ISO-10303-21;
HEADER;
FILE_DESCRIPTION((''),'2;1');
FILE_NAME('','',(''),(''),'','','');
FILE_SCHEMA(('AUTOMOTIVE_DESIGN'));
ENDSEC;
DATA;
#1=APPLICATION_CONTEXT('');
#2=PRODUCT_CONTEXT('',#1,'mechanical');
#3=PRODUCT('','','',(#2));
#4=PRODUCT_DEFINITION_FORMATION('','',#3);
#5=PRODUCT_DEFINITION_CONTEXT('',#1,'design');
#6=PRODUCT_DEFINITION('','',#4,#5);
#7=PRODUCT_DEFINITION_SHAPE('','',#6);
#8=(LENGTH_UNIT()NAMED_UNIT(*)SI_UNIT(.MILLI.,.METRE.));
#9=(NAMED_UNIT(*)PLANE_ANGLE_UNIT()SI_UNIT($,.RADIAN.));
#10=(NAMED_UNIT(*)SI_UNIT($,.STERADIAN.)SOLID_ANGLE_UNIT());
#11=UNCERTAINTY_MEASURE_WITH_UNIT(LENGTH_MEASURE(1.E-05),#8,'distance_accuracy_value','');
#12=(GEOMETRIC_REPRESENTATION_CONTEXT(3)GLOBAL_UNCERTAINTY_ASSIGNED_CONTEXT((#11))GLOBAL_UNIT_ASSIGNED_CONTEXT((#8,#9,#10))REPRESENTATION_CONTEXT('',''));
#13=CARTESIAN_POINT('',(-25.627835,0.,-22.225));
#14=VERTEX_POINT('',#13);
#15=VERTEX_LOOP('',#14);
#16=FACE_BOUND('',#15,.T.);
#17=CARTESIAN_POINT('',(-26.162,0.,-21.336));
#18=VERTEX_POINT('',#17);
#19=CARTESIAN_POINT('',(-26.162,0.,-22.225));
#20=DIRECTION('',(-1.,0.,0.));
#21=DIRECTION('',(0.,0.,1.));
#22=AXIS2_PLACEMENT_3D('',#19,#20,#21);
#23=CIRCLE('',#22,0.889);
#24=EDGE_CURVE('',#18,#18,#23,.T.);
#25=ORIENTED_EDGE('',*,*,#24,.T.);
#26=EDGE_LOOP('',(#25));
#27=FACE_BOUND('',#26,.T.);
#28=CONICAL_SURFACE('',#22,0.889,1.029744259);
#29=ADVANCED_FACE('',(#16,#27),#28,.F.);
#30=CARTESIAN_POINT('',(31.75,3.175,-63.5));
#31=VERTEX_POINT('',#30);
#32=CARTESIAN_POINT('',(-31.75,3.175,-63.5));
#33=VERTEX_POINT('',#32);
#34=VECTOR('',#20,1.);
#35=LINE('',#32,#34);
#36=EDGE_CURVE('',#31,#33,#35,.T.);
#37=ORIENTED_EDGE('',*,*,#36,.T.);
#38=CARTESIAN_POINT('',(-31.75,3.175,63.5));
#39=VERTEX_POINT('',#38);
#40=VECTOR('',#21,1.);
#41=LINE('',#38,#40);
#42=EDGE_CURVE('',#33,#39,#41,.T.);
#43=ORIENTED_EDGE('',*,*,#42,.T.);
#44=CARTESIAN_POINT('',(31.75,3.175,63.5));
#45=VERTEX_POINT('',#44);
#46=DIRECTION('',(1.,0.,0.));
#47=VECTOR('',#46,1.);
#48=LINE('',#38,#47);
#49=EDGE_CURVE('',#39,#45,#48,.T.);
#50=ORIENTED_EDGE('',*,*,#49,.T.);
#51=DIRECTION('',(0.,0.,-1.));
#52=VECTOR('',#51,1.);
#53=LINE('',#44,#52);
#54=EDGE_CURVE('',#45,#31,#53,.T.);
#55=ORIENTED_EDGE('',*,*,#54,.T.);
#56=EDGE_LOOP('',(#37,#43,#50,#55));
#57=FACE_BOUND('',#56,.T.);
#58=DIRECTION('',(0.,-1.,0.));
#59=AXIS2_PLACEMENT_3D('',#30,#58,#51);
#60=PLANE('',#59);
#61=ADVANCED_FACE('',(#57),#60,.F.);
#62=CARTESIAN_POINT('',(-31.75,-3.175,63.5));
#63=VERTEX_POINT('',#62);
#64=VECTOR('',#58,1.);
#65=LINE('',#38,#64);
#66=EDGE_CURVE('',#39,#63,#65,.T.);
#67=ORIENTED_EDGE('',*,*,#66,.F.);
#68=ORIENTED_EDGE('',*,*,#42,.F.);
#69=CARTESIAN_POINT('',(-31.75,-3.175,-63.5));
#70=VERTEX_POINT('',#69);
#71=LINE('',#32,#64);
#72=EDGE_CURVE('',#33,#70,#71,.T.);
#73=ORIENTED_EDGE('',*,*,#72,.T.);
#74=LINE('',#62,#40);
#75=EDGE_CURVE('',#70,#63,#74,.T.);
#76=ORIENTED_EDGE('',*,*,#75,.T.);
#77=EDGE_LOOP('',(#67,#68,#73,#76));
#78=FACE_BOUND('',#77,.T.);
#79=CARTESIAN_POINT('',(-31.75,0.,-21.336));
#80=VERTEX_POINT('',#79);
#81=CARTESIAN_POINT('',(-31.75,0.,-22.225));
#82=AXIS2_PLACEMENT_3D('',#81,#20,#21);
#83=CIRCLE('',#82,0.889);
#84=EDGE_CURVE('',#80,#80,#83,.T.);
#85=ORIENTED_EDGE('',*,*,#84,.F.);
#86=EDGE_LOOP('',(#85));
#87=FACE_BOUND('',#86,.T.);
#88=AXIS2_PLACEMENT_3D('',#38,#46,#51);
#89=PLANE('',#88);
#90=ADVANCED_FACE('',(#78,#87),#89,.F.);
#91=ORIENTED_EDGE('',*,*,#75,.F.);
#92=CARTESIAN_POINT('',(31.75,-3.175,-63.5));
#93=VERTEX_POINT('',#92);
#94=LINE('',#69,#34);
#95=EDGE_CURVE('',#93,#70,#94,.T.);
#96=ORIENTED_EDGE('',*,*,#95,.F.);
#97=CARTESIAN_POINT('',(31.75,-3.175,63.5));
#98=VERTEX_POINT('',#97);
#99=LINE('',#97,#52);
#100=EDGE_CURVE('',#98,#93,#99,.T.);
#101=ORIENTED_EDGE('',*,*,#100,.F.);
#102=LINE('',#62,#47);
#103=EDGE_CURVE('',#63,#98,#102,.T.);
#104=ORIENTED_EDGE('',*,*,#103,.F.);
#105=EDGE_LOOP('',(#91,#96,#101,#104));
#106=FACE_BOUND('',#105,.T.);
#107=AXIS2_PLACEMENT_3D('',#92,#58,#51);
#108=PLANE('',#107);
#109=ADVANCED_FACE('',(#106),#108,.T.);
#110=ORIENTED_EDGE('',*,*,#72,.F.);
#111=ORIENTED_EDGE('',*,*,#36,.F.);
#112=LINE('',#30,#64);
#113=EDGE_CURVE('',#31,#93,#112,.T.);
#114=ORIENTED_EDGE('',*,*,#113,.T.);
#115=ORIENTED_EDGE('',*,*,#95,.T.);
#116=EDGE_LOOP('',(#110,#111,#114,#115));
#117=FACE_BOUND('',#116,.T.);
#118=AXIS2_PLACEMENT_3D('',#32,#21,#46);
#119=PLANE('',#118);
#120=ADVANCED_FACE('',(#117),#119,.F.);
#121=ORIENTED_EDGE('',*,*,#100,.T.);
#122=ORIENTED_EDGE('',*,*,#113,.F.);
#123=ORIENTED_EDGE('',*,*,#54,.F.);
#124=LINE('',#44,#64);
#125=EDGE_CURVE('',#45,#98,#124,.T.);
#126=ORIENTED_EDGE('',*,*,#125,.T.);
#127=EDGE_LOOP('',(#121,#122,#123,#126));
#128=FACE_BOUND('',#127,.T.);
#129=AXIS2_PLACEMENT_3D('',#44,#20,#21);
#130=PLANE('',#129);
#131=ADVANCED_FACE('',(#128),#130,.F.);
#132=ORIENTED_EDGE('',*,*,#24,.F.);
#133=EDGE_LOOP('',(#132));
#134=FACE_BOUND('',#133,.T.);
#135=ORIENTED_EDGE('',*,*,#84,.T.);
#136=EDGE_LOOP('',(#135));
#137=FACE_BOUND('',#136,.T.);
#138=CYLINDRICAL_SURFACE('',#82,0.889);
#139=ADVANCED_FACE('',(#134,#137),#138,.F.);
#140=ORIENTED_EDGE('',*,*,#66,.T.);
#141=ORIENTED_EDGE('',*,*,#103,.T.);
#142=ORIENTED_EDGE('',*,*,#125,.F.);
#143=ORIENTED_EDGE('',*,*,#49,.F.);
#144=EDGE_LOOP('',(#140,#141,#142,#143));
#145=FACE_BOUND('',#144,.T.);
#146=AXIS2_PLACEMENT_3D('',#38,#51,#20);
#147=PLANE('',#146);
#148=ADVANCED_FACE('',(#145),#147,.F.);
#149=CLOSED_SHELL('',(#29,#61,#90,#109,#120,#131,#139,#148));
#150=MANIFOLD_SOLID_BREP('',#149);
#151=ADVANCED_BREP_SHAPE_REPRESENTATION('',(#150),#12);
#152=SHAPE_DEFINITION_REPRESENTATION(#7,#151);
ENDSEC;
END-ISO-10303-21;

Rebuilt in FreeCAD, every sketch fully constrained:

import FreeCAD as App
import Part
import Sketcher
Q = App.Units.Quantity


def add_polygon(sketch, points):
    """Adds a closed chain of lines whose ends are joined by coincident constraints."""
    first, n = sketch.GeometryCount, len(points)
    for a, b in zip(points, points[1:] + points[:1]):
        sketch.addGeometry(Part.LineSegment(App.Vector(*a, 0), App.Vector(*b, 0)), False)
    for i in range(n):
        sketch.addConstraint(Sketcher.Constraint("Coincident", first + i, 2, first + (i + 1) % n, 1))

doc = App.newDocument("Part")
body = doc.addObject("PartDesign::Body", "Body")

# Sketch on XZ plane
sketch1 = doc.addObject("Sketcher::SketchObject", "Sketch")
body.addObject(sketch1)
sketch1.AttachmentSupport = (doc.XZ_Plane, [""])
sketch1.MapMode = "FlatFace"
add_polygon(sketch1, [(-32, -64), (-32, 64), (32, 64), (32, -64)])  # lines 0-3
sketch1.addConstraint([
    Sketcher.Constraint("Vertical", 0),
    Sketcher.Constraint("Horizontal", 1),
    Sketcher.Constraint("Vertical", 2),
    Sketcher.Constraint("Horizontal", 3),
    Sketcher.Constraint("Symmetric", 0, 2, 2, 2, -1, 1),
    Sketcher.Constraint("DistanceY", 0, 1, 0, 2, Q("5 in")),
    Sketcher.Constraint("DistanceX", 1, 1, 1, 2, Q("2.5 in")),
])
pad1 = doc.addObject("PartDesign::Pad", "Pad")
body.addObject(pad1)
pad1.Profile = sketch1
pad1.Length = Q("0.25 in")
pad1.Midplane = True

# Sketch on YZ plane
sketch2 = doc.addObject("Sketcher::SketchObject", "Sketch001")
body.addObject(sketch2)
sketch2.AttachmentSupport = (doc.YZ_Plane, [""])
sketch2.MapMode = "FlatFace"
sketch2.AttachmentOffset = App.Placement(App.Vector(0, 0, -1.25 * 25.4), App.Rotation())
sketch2.addGeometry(Part.Circle(App.Vector(0, -22.2, 0), App.Vector(0, 0, 1), 0.9), False)
sketch2.addConstraint([
    Sketcher.Constraint("PointOnObject", 0, 3, -2),
    Sketcher.Constraint("Diameter", 0, Q("0.07 in")),
    Sketcher.Constraint("DistanceY", 0, 3, -1, 1, Q("0.875 in")),
])
doc.recompute()
hole = doc.addObject("PartDesign::Hole", "Hole")
body.addObject(hole)
hole.Profile = sketch2
hole.ThreadType = "None"
hole.Diameter = Q("0.07 in")
hole.DepthType = "Dimension"
hole.Depth = Q("0.22 in")
hole.DrillPoint = "Angled"
hole.DrillPointAngle = 118
hole.Reversed = True

doc.recompute()
